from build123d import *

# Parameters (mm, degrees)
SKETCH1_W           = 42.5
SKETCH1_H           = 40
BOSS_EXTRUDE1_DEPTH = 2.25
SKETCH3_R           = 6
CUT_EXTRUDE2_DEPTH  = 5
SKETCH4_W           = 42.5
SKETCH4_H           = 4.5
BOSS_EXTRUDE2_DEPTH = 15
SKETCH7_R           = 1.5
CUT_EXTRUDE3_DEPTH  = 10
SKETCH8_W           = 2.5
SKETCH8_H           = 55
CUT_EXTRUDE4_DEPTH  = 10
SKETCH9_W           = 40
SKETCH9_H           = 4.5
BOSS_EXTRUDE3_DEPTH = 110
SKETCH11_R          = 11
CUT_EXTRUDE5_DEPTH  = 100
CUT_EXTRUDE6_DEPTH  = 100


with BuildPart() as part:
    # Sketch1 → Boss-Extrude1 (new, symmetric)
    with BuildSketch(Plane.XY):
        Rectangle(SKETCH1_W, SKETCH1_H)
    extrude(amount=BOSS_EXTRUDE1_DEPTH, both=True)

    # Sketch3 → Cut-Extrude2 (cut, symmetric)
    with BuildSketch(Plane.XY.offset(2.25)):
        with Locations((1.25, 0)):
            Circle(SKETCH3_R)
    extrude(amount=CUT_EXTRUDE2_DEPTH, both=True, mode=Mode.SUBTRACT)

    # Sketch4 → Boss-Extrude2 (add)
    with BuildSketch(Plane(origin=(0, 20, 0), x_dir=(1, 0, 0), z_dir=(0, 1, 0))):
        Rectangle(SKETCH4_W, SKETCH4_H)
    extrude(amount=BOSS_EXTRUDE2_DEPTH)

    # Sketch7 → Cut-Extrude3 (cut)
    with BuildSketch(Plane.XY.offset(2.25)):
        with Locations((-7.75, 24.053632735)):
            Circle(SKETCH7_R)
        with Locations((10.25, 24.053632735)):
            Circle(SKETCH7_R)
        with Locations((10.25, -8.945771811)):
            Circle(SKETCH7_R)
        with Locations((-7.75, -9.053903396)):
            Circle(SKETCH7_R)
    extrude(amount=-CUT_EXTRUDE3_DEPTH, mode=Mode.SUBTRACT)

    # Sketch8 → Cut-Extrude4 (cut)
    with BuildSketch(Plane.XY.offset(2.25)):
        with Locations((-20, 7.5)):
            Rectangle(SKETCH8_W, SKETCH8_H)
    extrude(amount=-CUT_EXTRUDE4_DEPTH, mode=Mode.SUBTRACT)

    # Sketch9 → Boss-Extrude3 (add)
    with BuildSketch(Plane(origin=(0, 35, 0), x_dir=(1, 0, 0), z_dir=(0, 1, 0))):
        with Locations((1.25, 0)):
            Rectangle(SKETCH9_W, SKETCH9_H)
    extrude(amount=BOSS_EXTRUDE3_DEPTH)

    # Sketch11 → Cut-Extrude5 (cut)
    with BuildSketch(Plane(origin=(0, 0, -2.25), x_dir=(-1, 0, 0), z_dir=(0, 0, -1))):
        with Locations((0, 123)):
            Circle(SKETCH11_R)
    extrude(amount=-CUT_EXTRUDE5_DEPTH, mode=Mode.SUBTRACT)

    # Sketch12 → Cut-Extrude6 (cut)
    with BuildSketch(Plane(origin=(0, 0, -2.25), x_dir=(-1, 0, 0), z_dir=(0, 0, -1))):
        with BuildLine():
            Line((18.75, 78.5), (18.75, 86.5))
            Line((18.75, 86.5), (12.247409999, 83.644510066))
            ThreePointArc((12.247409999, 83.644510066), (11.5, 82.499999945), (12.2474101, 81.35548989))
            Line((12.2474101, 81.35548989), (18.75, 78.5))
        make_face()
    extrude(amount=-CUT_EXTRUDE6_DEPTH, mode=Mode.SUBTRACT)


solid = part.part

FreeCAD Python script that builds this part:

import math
import FreeCAD as App
import Part
import Sketcher

doc = App.newDocument("Part")
body = doc.addObject("PartDesign::Body", "Body")

# Sketch on XY plane
sketch1 = body.newObject("Sketcher::SketchObject", "Sketch")
sketch1.AttachmentSupport = (doc.getObject("XY_Plane"), [""])
sketch1.MapMode = "FlatFace"
sketch1.addGeometry([
    Part.LineSegment(App.Vector(-21, 20, 0), App.Vector(-21, -20, 0)),
    Part.LineSegment(App.Vector(-21, -20, 0), App.Vector(21, -20, 0)),
    Part.LineSegment(App.Vector(21, -20, 0), App.Vector(21, 20, 0)),
    Part.LineSegment(App.Vector(21, 20, 0), App.Vector(-21, 20, 0)),
], False)
sketch1.addConstraint([
    Sketcher.Constraint("Coincident", 0, 2, 1, 1),
    Sketcher.Constraint("Coincident", 1, 2, 2, 1),
    Sketcher.Constraint("Coincident", 2, 2, 3, 1),
    Sketcher.Constraint("Coincident", 3, 2, 0, 1),
    Sketcher.Constraint("Vertical", 0),
    Sketcher.Constraint("Horizontal", 1),
    Sketcher.Constraint("Vertical", 2),
    Sketcher.Constraint("Horizontal", 3),
    Sketcher.Constraint("Symmetric", 0, 2, 2, 2, -1, 1),
    Sketcher.Constraint("DistanceY", 0, 2, 0, 1, 40.0),
    Sketcher.Constraint("DistanceX", 1, 1, 1, 2, 42.5),
])
pad1 = body.newObject("PartDesign::Pad", "Pad")
pad1.Profile = sketch1
pad1.Length = 4.5
pad1.Midplane = True

# Sketch on XY plane
sketch2 = body.newObject("Sketcher::SketchObject", "Sketch001")
sketch2.AttachmentSupport = (doc.getObject("XY_Plane"), [""])
sketch2.MapMode = "FlatFace"
sketch2.AttachmentOffset = App.Placement(App.Vector(0, 0, 2.25), App.Rotation())
sketch2.addGeometry(Part.Circle(App.Vector(1, 0, 0), App.Vector(0, 0, 1), 6), False)
sketch2.addConstraint([
    Sketcher.Constraint("PointOnObject", 0, 3, -1),
    Sketcher.Constraint("Diameter", 0, 12.0),
    Sketcher.Constraint("DistanceX", -1, 1, 0, 3, 1.25),
])
pocket1 = body.newObject("PartDesign::Pocket", "Pocket")
pocket1.Profile = sketch2
pocket1.Length = 10
pocket1.Midplane = True

# Sketch on XZ plane
sketch3 = body.newObject("Sketcher::SketchObject", "Sketch002")
sketch3.AttachmentSupport = (doc.getObject("XZ_Plane"), [""])
sketch3.MapMode = "FlatFace"
sketch3.AttachmentOffset = App.Placement(App.Vector(0, 0, -20), App.Rotation())
sketch3.addGeometry([
    Part.LineSegment(App.Vector(-21.2, -2.2, 0), App.Vector(-21.2, 2.2, 0)),
    Part.LineSegment(App.Vector(-21.2, 2.2, 0), App.Vector(21.2, 2.2, 0)),
    Part.LineSegment(App.Vector(21.2, 2.2, 0), App.Vector(21.2, -2.2, 0)),
    Part.LineSegment(App.Vector(21.2, -2.2, 0), App.Vector(-21.2, -2.2, 0)),
], False)
sketch3.addConstraint([
    Sketcher.Constraint("Coincident", 0, 2, 1, 1),
    Sketcher.Constraint("Coincident", 1, 2, 2, 1),
    Sketcher.Constraint("Coincident", 2, 2, 3, 1),
    Sketcher.Constraint("Coincident", 3, 2, 0, 1),
    Sketcher.Constraint("Vertical", 0),
    Sketcher.Constraint("Horizontal", 1),
    Sketcher.Constraint("Vertical", 2),
    Sketcher.Constraint("Horizontal", 3),
    Sketcher.Constraint("Symmetric", 0, 2, 2, 2, -1, 1),
    Sketcher.Constraint("DistanceX", 1, 1, 1, 2, 42.5),
    Sketcher.Constraint("DistanceY", 0, 1, 0, 2, 4.5),
])
pad2 = body.newObject("PartDesign::Pad", "Pad001")
pad2.Profile = sketch3
pad2.Length = 15
pad2.Reversed = True

# Sketch on XY plane
sketch4 = body.newObject("Sketcher::SketchObject", "Sketch003")
sketch4.AttachmentSupport = (doc.getObject("XY_Plane"), [""])
sketch4.MapMode = "FlatFace"
sketch4.AttachmentOffset = App.Placement(App.Vector(0, 0, 2.25), App.Rotation())
sketch4.addGeometry([
    Part.Circle(App.Vector(-7.8, 24.1, 0), App.Vector(0, 0, 1), 1.5),
    Part.Circle(App.Vector(10.2, 24.1, 0), App.Vector(0, 0, 1), 1.5),
    Part.Circle(App.Vector(10.2, -8.9, 0), App.Vector(0, 0, 1), 1.5),
    Part.Circle(App.Vector(-7.8, -9.1, 0), App.Vector(0, 0, 1), 1.5),
], False)
sketch4.addConstraint([
    Sketcher.Constraint("Equal", 0, 1),
    Sketcher.Constraint("Equal", 1, 2),
    Sketcher.Constraint("Equal", 2, 3),
    Sketcher.Constraint("Horizontal", 0, 3, 1, 3),
    Sketcher.Constraint("Vertical", 1, 3, 2, 3),
    Sketcher.Constraint("Vertical", 0, 3, 3, 3),
    Sketcher.Constraint("Diameter", 0, 3.0),
    Sketcher.Constraint("DistanceX", 0, 3, 1, 3, 18.0),
    Sketcher.Constraint("DistanceX", 0, 3, -1, 1, 7.75),
    Sketcher.Constraint("DistanceY", 2, 3, -1, 1, 8.945772),
    Sketcher.Constraint("DistanceY", 3, 3, 2, 3, 0.108132),
    Sketcher.Constraint("DistanceY", -1, 1, 0, 3, 24.053633),
])
pocket2 = body.newObject("PartDesign::Pocket", "Pocket001")
pocket2.Profile = sketch4
pocket2.Length = 10

# Sketch on XY plane
sketch5 = body.newObject("Sketcher::SketchObject", "Sketch004")
sketch5.AttachmentSupport = (doc.getObject("XY_Plane"), [""])
sketch5.MapMode = "FlatFace"
sketch5.AttachmentOffset = App.Placement(App.Vector(0, 0, 2.25), App.Rotation())
sketch5.addGeometry([
    Part.LineSegment(App.Vector(-21.2, 35, 0), App.Vector(-21.2, -20, 0)),
    Part.LineSegment(App.Vector(-21.2, -20, 0), App.Vector(-18.8, -20, 0)),
    Part.LineSegment(App.Vector(-18.8, -20, 0), App.Vector(-18.8, 35, 0)),
    Part.LineSegment(App.Vector(-18.8, 35, 0), App.Vector(-21.2, 35, 0)),
], False)
sketch5.addConstraint([
    Sketcher.Constraint("Coincident", 0, 2, 1, 1),
    Sketcher.Constraint("Coincident", 1, 2, 2, 1),
    Sketcher.Constraint("Coincident", 2, 2, 3, 1),
    Sketcher.Constraint("Coincident", 3, 2, 0, 1),
    Sketcher.Constraint("Vertical", 0),
    Sketcher.Constraint("Horizontal", 1),
    Sketcher.Constraint("Vertical", 2),
    Sketcher.Constraint("Horizontal", 3),
    Sketcher.Constraint("DistanceY", 0, 2, 0, 1, 55.0),
    Sketcher.Constraint("DistanceX", 1, 1, 1, 2, 2.5),
    Sketcher.Constraint("DistanceY", 0, 2, -1, 1, 20.0),
    Sketcher.Constraint("DistanceX", 0, 2, -1, 1, 21.25),
])
pocket3 = body.newObject("PartDesign::Pocket", "Pocket002")
pocket3.Profile = sketch5
pocket3.Length = 10

# Sketch on XZ plane
sketch6 = body.newObject("Sketcher::SketchObject", "Sketch005")
sketch6.AttachmentSupport = (doc.getObject("XZ_Plane"), [""])
sketch6.MapMode = "FlatFace"
sketch6.AttachmentOffset = App.Placement(App.Vector(0, 0, -35), App.Rotation())
sketch6.addGeometry([
    Part.LineSegment(App.Vector(-18.8, -2.2, 0), App.Vector(-18.8, 2.2, 0)),
    Part.LineSegment(App.Vector(-18.8, 2.2, 0), App.Vector(21.2, 2.2, 0)),
    Part.LineSegment(App.Vector(21.2, 2.2, 0), App.Vector(21.2, -2.2, 0)),
    Part.LineSegment(App.Vector(21.2, -2.2, 0), App.Vector(-18.8, -2.2, 0)),
], False)
sketch6.addConstraint([
    Sketcher.Constraint("Coincident", 0, 2, 1, 1),
    Sketcher.Constraint("Coincident", 1, 2, 2, 1),
    Sketcher.Constraint("Coincident", 2, 2, 3, 1),
    Sketcher.Constraint("Coincident", 3, 2, 0, 1),
    Sketcher.Constraint("Vertical", 0),
    Sketcher.Constraint("Horizontal", 1),
    Sketcher.Constraint("Vertical", 2),
    Sketcher.Constraint("Horizontal", 3),
    Sketcher.Constraint("DistanceX", 1, 1, 1, 2, 40.0),
    Sketcher.Constraint("DistanceY", 0, 1, 0, 2, 4.5),
    Sketcher.Constraint("DistanceX", 0, 2, -1, 1, 18.75),
    Sketcher.Constraint("DistanceY", -1, 1, 0, 2, 2.25),
])
pad3 = body.newObject("PartDesign::Pad", "Pad002")
pad3.Profile = sketch6
pad3.Length = 110
pad3.Reversed = True

# Sketch on XY plane
sketch7 = body.newObject("Sketcher::SketchObject", "Sketch006")
sketch7.AttachmentSupport = (doc.getObject("XY_Plane"), [""])
sketch7.MapMode = "FlatFace"
sketch7.AttachmentOffset = App.Placement(App.Vector(0, 0, -2.25), App.Rotation())
sketch7.addGeometry(Part.Circle(App.Vector(0, 123, 0), App.Vector(0, 0, 1), 11), False)
sketch7.addConstraint([
    Sketcher.Constraint("PointOnObject", 0, 3, -2),
    Sketcher.Constraint("Diameter", 0, 22.0),
    Sketcher.Constraint("DistanceY", -1, 1, 0, 3, 123.0),
])
pocket4 = body.newObject("PartDesign::Pocket", "Pocket003")
pocket4.Profile = sketch7
pocket4.Length = 100
pocket4.Reversed = True

# Sketch on XY plane
sketch8 = body.newObject("Sketcher::SketchObject", "Sketch007")
sketch8.AttachmentSupport = (doc.getObject("XY_Plane"), [""])
sketch8.MapMode = "FlatFace"
sketch8.AttachmentOffset = App.Placement(App.Vector(0, 0, -2.25), App.Rotation())
sketch8.addGeometry([
    Part.LineSegment(App.Vector(-18.8, 78.5, 0), App.Vector(-18.8, 86.5, 0)),
    Part.LineSegment(App.Vector(-18.8, 86.5, 0), App.Vector(-12.2, 83.6, 0)),
    Part.ArcOfCircle(Part.Circle(App.Vector(-12.8, 82.5, 0), App.Vector(0, 0, 1), 1.2), math.radians(-66), math.radians(66)),
    Part.LineSegment(App.Vector(-12.2, 81.4, 0), App.Vector(-18.8, 78.5, 0)),
], False)
sketch8.addConstraint([
    Sketcher.Constraint("Coincident", 0, 2, 1, 1),
    Sketcher.Constraint("Tangent", 1, 2, 2, 2),
    Sketcher.Constraint("Tangent", 2, 1, 3, 1),
    Sketcher.Constraint("Coincident", 3, 2, 0, 1),
    Sketcher.Constraint("Vertical", 0),
    Sketcher.Constraint("Vertical", 1, 2, 2, 1),
    Sketcher.Constraint("DistanceY", 0, 1, 0, 2, 8.0),
    Sketcher.Constraint("Radius", 2, 1.25),
    Sketcher.Constraint("DistanceX", 0, 2, 2, 3, 6.0),
    Sketcher.Constraint("DistanceY", -1, 1, 2, 3, 82.5),
    Sketcher.Constraint("DistanceX", 2, 3, -1, 1, 12.75),
])
pocket5 = body.newObject("PartDesign::Pocket", "Pocket004")
pocket5.Profile = sketch8
pocket5.Length = 100
pocket5.Reversed = True

doc.recompute()
